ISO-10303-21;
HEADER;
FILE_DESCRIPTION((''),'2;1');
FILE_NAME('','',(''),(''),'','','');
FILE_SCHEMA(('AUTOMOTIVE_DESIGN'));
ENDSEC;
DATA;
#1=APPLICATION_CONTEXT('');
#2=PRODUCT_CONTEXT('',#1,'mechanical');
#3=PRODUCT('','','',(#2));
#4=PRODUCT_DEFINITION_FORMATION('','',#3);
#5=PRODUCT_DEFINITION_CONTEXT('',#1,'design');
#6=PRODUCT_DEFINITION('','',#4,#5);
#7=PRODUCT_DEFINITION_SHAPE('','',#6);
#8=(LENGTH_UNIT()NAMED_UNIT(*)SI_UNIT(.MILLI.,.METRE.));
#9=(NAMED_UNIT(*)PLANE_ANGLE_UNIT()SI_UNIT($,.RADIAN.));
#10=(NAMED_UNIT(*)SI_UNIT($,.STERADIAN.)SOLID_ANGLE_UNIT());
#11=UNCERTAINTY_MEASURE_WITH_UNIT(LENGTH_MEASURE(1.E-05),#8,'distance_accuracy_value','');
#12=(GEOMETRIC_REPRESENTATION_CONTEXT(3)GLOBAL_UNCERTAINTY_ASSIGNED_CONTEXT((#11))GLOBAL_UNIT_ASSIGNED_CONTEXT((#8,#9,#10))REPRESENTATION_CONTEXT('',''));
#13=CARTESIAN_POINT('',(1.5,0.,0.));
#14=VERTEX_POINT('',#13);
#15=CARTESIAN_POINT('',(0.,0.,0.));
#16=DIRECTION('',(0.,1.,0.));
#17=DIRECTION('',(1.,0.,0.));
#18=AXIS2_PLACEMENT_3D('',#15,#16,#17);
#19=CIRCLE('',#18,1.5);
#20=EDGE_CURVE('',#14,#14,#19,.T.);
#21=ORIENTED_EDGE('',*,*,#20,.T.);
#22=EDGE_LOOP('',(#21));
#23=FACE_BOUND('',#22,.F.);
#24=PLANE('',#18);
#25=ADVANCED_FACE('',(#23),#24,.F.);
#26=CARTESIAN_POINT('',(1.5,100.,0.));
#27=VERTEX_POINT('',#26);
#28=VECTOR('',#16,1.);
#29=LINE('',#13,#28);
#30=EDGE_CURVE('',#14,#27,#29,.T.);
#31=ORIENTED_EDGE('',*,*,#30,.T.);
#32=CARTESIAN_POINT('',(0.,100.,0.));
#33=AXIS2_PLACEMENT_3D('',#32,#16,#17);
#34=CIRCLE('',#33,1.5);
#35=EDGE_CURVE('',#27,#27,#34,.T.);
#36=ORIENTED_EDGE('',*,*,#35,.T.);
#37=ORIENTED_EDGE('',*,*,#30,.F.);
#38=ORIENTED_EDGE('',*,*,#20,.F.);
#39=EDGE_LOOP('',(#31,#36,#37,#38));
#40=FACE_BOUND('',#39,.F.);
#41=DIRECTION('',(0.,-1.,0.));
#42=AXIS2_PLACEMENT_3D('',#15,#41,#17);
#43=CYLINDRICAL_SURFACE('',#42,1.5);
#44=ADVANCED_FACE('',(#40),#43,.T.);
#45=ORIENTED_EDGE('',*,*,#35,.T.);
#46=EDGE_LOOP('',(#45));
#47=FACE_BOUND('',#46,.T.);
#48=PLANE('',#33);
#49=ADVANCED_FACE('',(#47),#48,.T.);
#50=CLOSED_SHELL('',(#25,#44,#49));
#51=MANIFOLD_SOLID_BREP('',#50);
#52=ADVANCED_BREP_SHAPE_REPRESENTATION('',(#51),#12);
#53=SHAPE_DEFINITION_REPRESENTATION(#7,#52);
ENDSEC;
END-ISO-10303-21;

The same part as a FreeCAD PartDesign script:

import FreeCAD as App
import Part
import Sketcher
from FreeCAD import Vector

doc = App.newDocument("Part")
params = doc.addObject("Spreadsheet::Sheet", "Params")
for row, (alias, value) in enumerate([
    ("sketch1_diameter", "3 mm"),
    ("pad1_length", "100 mm"),
], start=1):
    params.set(f"A{row}", alias)
    params.set(f"B{row}", "=" + value)
    params.setAlias(f"B{row}", alias)

body = doc.addObject("PartDesign::Body", "Body")

sketch1 = doc.addObject("Sketcher::SketchObject", "Sketch")
body.addObject(sketch1)
sketch1.AttachmentSupport = (doc.XZ_Plane, [""])
sketch1.MapMode = "FlatFace"
sketch1.addGeometry(Part.Circle(Vector(0, 0, 0), Vector(0, 0, 1), 1.5), False)
sketch1.addConstraint([
    Sketcher.Constraint("Coincident", 0, 3, -1, 1),
    Sketcher.Constraint("Diameter", 0, 3.0),
])
sketch1.setExpression("Constraints[1]", "Params.sketch1_diameter")
pad1 = doc.addObject("PartDesign::Pad", "Pad")
body.addObject(pad1)
pad1.Profile = sketch1
pad1.setExpression("Length", "Params.pad1_length")
pad1.Reversed = True

doc.recompute()
